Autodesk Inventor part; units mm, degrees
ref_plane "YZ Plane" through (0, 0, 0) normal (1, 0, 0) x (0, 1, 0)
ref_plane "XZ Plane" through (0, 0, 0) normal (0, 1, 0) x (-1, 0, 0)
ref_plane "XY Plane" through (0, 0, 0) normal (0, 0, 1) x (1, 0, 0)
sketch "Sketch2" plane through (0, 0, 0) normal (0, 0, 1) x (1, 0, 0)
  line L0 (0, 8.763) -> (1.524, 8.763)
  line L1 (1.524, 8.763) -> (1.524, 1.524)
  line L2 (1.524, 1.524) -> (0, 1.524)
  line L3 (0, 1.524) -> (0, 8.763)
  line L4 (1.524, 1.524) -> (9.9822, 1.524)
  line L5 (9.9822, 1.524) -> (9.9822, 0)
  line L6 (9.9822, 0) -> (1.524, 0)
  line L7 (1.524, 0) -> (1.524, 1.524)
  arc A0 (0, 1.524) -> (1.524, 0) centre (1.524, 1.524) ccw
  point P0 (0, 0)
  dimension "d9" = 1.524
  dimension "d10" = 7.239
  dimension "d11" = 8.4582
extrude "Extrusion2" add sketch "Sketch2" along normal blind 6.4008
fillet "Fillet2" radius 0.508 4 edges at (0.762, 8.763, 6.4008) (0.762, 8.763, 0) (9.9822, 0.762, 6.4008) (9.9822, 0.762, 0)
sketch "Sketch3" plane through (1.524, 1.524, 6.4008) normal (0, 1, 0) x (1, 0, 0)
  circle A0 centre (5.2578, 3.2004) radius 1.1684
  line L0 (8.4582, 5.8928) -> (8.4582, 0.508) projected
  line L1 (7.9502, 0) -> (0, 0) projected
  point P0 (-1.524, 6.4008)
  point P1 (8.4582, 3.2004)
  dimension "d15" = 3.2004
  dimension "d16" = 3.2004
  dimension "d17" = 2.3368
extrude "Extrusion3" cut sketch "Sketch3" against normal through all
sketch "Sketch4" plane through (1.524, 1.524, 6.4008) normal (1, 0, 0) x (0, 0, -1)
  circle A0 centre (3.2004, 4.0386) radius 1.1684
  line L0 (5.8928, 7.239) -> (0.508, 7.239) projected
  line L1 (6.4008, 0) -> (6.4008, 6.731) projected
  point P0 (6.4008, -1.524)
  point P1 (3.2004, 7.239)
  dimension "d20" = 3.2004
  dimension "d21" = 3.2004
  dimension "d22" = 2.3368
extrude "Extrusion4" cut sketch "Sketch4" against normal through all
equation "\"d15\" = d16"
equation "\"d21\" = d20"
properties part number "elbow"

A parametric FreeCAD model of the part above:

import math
import FreeCAD as App
import Part
import Sketcher

V = App.Vector
Q = App.Units.Quantity


def edges_at(feature, points):
    """Names of the edges that pass closest to the given points."""
    edges = feature.Shape.Edges
    near = lambda p: min(range(len(edges)), key=lambda i: edges[i].distToShape(Part.Vertex(*p))[0])
    return sorted({f"Edge{near(p) + 1}" for p in points})

doc = App.newDocument("Part")
params = doc.addObject("Spreadsheet::Sheet", "Params")
for row, (alias, value) in enumerate([
    ("sketch1_radius", "0.06 in"),
    ("sketch1_width", "0.333 in"),
    ("sketch1_height", "0.285 in"),
    ("pad1_length", "0.252 in"),
    ("fillet_radius", "0.02 in"),
    ("sketch2_diameter", "0.092 in"),
    ("sketch3_diameter", "0.092 in"),
], start=1):
    params.set(f"A{row}", alias)
    params.set(f"B{row}", "=" + value)
    params.setAlias(f"B{row}", alias)

body = doc.addObject("PartDesign::Body", "Body")

# Sketch on XY plane
sketch1 = body.newObject("Sketcher::SketchObject", "Sketch")
sketch1.AttachmentSupport = (doc.getObject("XY_Plane"), [""])
sketch1.MapMode = "FlatFace"
sketch1.addGeometry([
    Part.LineSegment(V(1.524, 8.763, 0), V(0, 8.763, 0)),  # 0
    Part.LineSegment(V(0, 8.763, 0), V(0, 1.524, 0)),  # 1
    Part.ArcOfCircle(Part.Circle(V(1.524, 1.524, 0), V(0, 0, 1), 1.524), math.radians(180), math.radians(270)),  # 2
    Part.LineSegment(V(1.524, 0, 0), V(9.9822, 0, 0)),  # 3
    Part.LineSegment(V(9.9822, 0, 0), V(9.9822, 1.524, 0)),  # 4
    Part.LineSegment(V(9.9822, 1.524, 0), V(1.524, 1.524, 0)),  # 5
    Part.LineSegment(V(1.524, 1.524, 0), V(1.524, 8.763, 0)),  # 6
], False)
sketch1.addConstraint([
    Sketcher.Constraint("Coincident", 0, 2, 1, 1),
    Sketcher.Constraint("Tangent", 1, 2, 2, 1),
    Sketcher.Constraint("Tangent", 2, 2, 3, 1),
    Sketcher.Constraint("Coincident", 3, 2, 4, 1),
    Sketcher.Constraint("Coincident", 4, 2, 5, 1),
    Sketcher.Constraint("Coincident", 5, 2, 6, 1),
    Sketcher.Constraint("Coincident", 6, 2, 0, 1),
    Sketcher.Constraint("Horizontal", 0),
    Sketcher.Constraint("Vertical", 1),
    Sketcher.Constraint("Horizontal", 3),
    Sketcher.Constraint("Vertical", 4),
    Sketcher.Constraint("Horizontal", 5),
    Sketcher.Constraint("Vertical", 6),
    Sketcher.Constraint("Coincident", 5, 2, 2, 3),
    Sketcher.Constraint("PointOnObject", 0, 2, -2),
    Sketcher.Constraint("PointOnObject", 2, 2, -1),
    Sketcher.Constraint("Radius", 2, Q("0.06 in")),
    Sketcher.Constraint("DistanceX", 3, 1, 3, 2, Q("0.333 in")),
    Sketcher.Constraint("DistanceY", 1, 2, 1, 1, Q("0.285 in")),
])
sketch1.setExpression("Constraints[16]", "Params.sketch1_radius")
sketch1.setExpression("Constraints[17]", "Params.sketch1_width")
sketch1.setExpression("Constraints[18]", "Params.sketch1_height")
pad1 = body.newObject("PartDesign::Pad", "Pad")
pad1.Profile = sketch1
pad1.setExpression("Length", "Params.pad1_length")
doc.recompute()

fillet = body.newObject("PartDesign::Fillet", "Fillet")
fillet.Base = (pad1, edges_at(pad1, [
    (0.762, 8.763, 6.401),
    (0.762, 8.763, 0),
    (9.982, 0.762, 6.401),
    (9.982, 0.762, 0),
]))
fillet.setExpression("Radius", "Params.fillet_radius")

# Sketch on XZ plane
sketch2 = body.newObject("Sketcher::SketchObject", "Sketch001")
sketch2.AttachmentSupport = (doc.getObject("XZ_Plane"), [""])
sketch2.MapMode = "FlatFace"
sketch2.AttachmentOffset = App.Placement(V(0, 0, -0.06 * 25.4), App.Rotation())
sketch2.addGeometry(Part.Circle(V(6.7818, 3.2004, 0), V(0, 0, 1), 1.1684), False)
sketch2.addConstraint([
    Sketcher.Constraint("Diameter", 0, Q("0.092 in")),
    Sketcher.Constraint("DistanceY", -1, 1, 0, 3, Q("0.126 in")),
    Sketcher.Constraint("DistanceX", -1, 1, 0, 3, Q("0.267 in")),
])
sketch2.setExpression("Constraints[0]", "Params.sketch2_diameter")
pocket1 = body.newObject("PartDesign::Pocket", "Pocket")
pocket1.Profile = sketch2
pocket1.Type = "ThroughAll"
pocket1.Reversed = True

# Sketch on YZ plane
sketch3 = body.newObject("Sketcher::SketchObject", "Sketch002")
sketch3.AttachmentSupport = (doc.getObject("YZ_Plane"), [""])
sketch3.MapMode = "FlatFace"
sketch3.AttachmentOffset = App.Placement(V(0, 0, 0.06 * 25.4), App.Rotation())
sketch3.addGeometry(Part.Circle(V(5.5626, 3.2004, 0), V(0, 0, 1), 1.1684), False)
sketch3.addConstraint([
    Sketcher.Constraint("Diameter", 0, Q("0.092 in")),
    Sketcher.Constraint("DistanceY", -1, 1, 0, 3, Q("0.126 in")),
    Sketcher.Constraint("DistanceX", -1, 1, 0, 3, Q("0.219 in")),
])
sketch3.setExpression("Constraints[0]", "Params.sketch3_diameter")
pocket2 = body.newObject("PartDesign::Pocket", "Pocket001")
pocket2.Profile = sketch3
pocket2.Type = "ThroughAll"

doc.recompute()
